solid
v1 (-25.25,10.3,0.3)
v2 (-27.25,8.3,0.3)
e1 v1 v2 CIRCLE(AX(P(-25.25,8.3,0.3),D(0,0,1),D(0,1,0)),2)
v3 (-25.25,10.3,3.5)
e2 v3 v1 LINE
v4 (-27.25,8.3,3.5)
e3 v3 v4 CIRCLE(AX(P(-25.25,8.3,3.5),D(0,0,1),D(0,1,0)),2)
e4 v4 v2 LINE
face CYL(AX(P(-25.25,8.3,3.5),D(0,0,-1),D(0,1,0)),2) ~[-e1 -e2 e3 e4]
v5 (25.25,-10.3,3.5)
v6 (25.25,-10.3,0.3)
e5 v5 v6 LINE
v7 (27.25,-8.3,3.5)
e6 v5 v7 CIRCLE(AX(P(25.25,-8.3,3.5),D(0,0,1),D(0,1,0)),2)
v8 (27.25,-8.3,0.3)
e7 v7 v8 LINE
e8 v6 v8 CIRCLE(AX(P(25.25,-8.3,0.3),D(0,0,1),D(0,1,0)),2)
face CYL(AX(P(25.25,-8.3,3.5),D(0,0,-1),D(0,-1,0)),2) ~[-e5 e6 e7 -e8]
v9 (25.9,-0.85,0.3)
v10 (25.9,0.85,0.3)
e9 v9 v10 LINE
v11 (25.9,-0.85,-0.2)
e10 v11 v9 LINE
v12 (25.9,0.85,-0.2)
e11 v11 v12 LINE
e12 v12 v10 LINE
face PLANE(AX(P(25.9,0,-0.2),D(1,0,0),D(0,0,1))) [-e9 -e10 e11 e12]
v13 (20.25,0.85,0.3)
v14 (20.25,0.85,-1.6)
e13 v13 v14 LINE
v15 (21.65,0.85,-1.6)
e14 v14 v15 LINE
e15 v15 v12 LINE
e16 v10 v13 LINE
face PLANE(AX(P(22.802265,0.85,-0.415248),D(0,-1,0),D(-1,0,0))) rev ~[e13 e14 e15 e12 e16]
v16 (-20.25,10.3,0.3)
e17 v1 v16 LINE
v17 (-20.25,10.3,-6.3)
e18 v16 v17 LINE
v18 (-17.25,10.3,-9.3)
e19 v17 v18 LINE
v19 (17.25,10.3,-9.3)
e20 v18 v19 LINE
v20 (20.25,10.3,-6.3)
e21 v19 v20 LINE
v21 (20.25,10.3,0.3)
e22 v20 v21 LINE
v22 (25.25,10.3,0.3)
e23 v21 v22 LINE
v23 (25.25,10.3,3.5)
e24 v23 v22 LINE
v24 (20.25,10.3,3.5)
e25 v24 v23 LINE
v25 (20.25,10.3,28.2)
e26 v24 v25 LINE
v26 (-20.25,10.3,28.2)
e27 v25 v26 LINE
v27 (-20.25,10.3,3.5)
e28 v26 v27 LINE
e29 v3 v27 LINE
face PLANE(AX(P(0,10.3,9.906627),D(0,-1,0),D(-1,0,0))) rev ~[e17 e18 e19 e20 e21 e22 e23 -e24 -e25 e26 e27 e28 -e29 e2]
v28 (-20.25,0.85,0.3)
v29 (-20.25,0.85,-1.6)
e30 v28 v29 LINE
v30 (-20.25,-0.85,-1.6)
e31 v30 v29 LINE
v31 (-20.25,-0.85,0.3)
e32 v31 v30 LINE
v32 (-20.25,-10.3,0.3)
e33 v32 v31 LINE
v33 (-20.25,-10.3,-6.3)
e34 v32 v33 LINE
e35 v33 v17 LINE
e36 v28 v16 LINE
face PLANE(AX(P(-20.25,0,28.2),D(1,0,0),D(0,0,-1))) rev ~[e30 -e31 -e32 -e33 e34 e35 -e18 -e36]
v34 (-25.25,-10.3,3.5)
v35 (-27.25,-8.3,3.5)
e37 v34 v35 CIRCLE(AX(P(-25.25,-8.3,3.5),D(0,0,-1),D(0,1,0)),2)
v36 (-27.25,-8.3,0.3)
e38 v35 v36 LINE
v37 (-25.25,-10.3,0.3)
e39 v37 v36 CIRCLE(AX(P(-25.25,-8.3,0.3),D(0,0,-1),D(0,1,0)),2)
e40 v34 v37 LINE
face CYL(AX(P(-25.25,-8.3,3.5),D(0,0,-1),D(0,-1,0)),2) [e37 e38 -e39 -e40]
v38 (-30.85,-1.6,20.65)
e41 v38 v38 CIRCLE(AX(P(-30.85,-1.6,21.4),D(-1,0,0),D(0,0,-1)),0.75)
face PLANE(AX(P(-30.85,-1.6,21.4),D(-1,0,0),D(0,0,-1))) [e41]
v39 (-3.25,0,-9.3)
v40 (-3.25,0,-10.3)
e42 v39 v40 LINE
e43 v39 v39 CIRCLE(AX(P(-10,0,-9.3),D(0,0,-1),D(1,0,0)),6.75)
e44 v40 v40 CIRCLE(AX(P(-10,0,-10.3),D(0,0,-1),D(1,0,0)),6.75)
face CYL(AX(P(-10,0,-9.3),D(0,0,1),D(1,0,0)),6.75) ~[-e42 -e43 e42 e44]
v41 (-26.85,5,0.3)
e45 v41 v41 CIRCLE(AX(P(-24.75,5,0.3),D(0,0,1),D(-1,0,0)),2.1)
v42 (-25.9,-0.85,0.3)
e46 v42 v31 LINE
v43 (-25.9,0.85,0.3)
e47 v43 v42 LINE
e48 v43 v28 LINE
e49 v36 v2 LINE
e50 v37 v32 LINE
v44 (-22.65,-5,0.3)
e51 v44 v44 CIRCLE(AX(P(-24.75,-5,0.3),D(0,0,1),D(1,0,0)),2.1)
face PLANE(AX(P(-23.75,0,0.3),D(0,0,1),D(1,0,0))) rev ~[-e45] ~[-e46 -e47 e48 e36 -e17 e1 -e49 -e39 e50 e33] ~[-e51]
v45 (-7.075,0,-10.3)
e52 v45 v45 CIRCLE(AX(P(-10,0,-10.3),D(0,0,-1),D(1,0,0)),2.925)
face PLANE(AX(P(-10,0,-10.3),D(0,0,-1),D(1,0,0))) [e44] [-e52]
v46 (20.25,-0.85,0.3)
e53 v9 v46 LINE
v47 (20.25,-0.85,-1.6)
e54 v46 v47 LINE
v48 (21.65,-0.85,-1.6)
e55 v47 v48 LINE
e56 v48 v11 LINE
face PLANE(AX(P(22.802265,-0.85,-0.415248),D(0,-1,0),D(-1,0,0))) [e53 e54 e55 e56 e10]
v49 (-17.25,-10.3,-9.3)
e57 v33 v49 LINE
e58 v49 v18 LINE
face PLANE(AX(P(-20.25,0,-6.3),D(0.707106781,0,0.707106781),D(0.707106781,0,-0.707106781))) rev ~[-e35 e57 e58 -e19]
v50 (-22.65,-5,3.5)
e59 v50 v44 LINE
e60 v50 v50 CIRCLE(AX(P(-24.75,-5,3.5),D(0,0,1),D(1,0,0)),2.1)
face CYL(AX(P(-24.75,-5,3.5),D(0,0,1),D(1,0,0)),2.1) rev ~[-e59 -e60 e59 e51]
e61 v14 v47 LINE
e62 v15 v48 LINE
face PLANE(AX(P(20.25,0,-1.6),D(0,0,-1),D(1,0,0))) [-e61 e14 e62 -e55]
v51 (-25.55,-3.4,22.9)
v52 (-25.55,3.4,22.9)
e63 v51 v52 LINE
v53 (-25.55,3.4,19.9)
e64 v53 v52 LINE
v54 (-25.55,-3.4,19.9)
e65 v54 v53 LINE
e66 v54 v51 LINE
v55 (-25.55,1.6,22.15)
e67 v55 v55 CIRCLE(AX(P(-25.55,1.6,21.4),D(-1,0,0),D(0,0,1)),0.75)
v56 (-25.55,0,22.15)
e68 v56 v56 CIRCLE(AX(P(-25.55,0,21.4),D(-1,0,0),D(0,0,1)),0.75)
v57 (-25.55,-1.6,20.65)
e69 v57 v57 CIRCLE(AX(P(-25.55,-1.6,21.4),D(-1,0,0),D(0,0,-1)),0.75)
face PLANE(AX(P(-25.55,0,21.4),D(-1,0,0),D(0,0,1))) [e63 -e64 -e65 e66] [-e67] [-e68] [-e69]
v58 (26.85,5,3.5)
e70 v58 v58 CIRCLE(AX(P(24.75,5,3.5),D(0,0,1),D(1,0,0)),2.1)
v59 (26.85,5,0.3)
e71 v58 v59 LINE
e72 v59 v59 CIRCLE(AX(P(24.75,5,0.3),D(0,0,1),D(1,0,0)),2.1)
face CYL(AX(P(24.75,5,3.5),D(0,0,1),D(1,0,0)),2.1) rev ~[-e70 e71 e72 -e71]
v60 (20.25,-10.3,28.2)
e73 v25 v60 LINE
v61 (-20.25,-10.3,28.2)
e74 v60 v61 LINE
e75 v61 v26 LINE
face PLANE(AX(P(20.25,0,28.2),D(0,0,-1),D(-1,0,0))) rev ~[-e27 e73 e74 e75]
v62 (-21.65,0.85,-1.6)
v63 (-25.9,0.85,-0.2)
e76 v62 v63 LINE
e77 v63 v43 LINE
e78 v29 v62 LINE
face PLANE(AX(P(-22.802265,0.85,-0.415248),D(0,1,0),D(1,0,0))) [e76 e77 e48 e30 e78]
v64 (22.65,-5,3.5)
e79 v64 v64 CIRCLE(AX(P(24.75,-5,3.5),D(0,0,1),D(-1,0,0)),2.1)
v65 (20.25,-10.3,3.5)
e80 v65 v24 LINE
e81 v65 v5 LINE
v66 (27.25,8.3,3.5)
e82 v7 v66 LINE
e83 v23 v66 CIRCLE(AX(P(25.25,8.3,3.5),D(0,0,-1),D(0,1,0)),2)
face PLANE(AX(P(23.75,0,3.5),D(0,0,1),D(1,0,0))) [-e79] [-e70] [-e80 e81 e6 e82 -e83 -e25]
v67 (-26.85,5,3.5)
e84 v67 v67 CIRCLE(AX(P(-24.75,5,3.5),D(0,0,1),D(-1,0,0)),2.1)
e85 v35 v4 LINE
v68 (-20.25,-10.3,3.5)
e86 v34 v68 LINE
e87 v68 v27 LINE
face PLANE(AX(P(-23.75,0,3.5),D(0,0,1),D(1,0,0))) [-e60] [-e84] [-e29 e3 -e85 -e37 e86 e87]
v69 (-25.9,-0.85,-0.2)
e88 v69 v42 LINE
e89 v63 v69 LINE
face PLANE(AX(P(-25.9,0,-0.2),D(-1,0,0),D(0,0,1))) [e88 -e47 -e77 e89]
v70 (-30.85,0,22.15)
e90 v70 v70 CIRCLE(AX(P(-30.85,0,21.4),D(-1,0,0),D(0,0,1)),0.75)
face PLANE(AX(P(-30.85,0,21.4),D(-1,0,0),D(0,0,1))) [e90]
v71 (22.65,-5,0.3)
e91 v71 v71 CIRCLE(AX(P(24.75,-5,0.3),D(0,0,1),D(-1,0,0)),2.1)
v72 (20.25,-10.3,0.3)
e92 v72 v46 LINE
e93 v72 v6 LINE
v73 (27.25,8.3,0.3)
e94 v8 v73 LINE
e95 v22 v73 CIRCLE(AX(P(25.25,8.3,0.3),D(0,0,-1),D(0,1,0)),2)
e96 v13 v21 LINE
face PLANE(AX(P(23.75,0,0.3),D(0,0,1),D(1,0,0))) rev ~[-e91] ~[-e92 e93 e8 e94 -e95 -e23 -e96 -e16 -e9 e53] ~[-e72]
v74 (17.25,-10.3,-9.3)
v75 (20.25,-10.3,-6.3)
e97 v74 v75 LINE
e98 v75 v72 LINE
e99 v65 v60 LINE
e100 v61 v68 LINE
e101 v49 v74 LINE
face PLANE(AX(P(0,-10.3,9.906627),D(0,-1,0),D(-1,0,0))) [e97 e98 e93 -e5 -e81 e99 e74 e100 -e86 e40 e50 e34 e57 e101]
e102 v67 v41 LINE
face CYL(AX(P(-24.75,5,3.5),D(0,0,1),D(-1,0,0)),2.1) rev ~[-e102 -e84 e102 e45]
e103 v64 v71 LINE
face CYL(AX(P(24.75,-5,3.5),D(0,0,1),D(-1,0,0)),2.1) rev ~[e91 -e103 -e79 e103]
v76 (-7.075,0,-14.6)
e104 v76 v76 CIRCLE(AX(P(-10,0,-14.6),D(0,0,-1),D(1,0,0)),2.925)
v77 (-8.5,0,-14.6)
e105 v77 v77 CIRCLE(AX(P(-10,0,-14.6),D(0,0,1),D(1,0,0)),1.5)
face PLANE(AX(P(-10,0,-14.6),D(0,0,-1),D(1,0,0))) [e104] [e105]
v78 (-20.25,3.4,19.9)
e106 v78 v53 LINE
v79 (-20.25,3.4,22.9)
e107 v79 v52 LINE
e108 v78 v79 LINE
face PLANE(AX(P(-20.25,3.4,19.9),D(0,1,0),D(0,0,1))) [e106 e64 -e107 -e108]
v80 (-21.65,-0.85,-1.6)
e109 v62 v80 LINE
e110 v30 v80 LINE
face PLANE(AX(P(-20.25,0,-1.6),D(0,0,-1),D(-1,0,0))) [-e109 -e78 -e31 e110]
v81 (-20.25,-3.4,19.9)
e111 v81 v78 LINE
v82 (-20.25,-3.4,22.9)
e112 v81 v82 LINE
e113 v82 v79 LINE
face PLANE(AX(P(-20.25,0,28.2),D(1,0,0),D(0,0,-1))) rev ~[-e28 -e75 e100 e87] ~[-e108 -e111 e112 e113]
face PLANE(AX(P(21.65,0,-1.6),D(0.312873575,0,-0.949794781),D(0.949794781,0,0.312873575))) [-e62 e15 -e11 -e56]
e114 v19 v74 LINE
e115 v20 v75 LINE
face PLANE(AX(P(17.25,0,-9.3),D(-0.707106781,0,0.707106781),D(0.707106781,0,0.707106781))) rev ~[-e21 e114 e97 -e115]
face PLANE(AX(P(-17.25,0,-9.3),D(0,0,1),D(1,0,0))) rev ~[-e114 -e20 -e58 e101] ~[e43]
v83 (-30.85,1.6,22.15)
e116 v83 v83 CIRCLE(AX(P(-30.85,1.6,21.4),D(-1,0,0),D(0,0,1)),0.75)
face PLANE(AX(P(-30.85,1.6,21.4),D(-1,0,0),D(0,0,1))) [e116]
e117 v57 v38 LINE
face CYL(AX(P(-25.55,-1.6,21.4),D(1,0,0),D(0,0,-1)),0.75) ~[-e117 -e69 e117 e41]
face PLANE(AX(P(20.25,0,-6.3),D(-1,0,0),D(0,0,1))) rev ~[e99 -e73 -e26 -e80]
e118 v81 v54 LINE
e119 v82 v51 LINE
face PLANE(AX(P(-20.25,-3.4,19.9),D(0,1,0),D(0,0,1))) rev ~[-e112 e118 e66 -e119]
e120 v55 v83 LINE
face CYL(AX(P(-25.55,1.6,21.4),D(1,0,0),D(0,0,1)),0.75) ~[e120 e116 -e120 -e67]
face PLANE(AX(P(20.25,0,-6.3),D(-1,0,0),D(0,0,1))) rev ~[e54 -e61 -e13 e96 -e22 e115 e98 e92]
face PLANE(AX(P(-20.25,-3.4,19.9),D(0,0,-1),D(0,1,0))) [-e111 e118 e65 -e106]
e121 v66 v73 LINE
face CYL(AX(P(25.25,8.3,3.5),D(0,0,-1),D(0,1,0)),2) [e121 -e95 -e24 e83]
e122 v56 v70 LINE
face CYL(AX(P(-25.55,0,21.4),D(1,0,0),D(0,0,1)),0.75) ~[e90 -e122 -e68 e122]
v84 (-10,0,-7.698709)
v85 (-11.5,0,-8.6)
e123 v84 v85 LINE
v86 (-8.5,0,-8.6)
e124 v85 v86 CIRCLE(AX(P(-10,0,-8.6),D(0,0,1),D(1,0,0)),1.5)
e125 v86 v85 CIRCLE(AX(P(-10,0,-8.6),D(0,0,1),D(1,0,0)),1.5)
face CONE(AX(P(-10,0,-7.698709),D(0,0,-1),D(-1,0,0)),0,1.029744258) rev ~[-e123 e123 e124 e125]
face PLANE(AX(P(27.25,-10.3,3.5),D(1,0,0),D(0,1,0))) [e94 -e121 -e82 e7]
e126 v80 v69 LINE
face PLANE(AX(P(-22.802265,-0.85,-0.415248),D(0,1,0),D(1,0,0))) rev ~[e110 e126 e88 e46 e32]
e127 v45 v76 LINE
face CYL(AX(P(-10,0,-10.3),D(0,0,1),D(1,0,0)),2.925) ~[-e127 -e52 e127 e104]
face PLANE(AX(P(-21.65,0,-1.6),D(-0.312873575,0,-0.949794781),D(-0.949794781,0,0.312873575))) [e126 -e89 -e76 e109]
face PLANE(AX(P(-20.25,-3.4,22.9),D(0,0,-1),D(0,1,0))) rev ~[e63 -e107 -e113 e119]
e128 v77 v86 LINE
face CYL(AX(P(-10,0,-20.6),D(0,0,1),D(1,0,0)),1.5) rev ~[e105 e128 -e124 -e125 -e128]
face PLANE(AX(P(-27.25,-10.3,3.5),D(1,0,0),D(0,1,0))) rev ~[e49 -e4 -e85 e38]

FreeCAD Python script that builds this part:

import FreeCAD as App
import Part
import Sketcher

V = App.Vector
Q = App.Units.Quantity


def edges_at(feature, points):
    """Names of the edges that pass closest to the given points."""
    edges = feature.Shape.Edges
    near = lambda p: min(range(len(edges)), key=lambda i: edges[i].distToShape(Part.Vertex(*p))[0])
    return sorted({f"Edge{near(p) + 1}" for p in points})

doc = App.newDocument("Part")
body = doc.addObject("PartDesign::Body", "Body")

# Sketch on XZ plane
sketch1 = body.newObject("Sketcher::SketchObject", "Sketch")
sketch1.AttachmentSupport = (doc.getObject("XZ_Plane"), [""])
sketch1.MapMode = "FlatFace"
sketch1.addGeometry([
    Part.LineSegment(V(17.2, -9.3, 0), V(-17.2, -9.3, 0)),  # 0
    Part.LineSegment(V(-17.2, -9.3, 0), V(-20.2, -6.3, 0)),  # 1
    Part.LineSegment(V(-20.2, -6.3, 0), V(-20.2, 28.2, 0)),  # 2
    Part.LineSegment(V(-20.2, 28.2, 0), V(20.2, 28.2, 0)),  # 3
    Part.LineSegment(V(20.2, 28.2, 0), V(20.2, -6.3, 0)),  # 4
    Part.LineSegment(V(20.2, -6.3, 0), V(17.2, -9.3, 0)),  # 5
], False)
sketch1.addConstraint([
    Sketcher.Constraint("Coincident", 0, 2, 1, 1),
    Sketcher.Constraint("Coincident", 1, 2, 2, 1),
    Sketcher.Constraint("Coincident", 2, 2, 3, 1),
    Sketcher.Constraint("Coincident", 3, 2, 4, 1),
    Sketcher.Constraint("Coincident", 4, 2, 5, 1),
    Sketcher.Constraint("Coincident", 5, 2, 0, 1),
    Sketcher.Constraint("Horizontal", 0),
    Sketcher.Constraint("Vertical", 2),
    Sketcher.Constraint("Horizontal", 3),
    Sketcher.Constraint("Vertical", 4),
    Sketcher.Constraint("Symmetric", 1, 2, 4, 2, -2),
    Sketcher.Constraint("Perpendicular", 1, 5),
    Sketcher.Constraint("Equal", 0, 2),
    Sketcher.Constraint("Equal", 1, 5),
    Sketcher.Constraint("DistanceX", 0, 2, 0, 1, Q("34.5 mm")),
    Sketcher.Constraint("DistanceX", 3, 1, 3, 2, Q("40.5 mm")),
    Sketcher.Constraint("DistanceY", 0, 2, -1, 1, Q("9.3 mm")),
])
pad1 = body.newObject("PartDesign::Pad", "Pad")
pad1.Profile = sketch1
pad1.Length = 20.6
pad1.Midplane = True

# Sketch on XY plane
sketch2 = body.newObject("Sketcher::SketchObject", "Sketch001")
sketch2.AttachmentSupport = (doc.getObject("XY_Plane"), [""])
sketch2.MapMode = "FlatFace"
sketch2.AttachmentOffset = App.Placement(V(0, 0, 3.5), App.Rotation())
sketch2.addGeometry([
    Part.LineSegment(V(20.2, 10.3, 0), V(20.2, -10.3, 0)),  # 0
    Part.LineSegment(V(20.2, -10.3, 0), V(27.2, -10.3, 0)),  # 1
    Part.LineSegment(V(27.2, -10.3, 0), V(27.2, 10.3, 0)),  # 2
    Part.LineSegment(V(27.2, 10.3, 0), V(20.2, 10.3, 0)),  # 3
    Part.Circle(V(24.8, -5, 0), V(0, 0, 1), 2.1),  # 4
    Part.Circle(V(24.8, 5, 0), V(0, 0, 1), 2.1),  # 5
    Part.LineSegment(V(-27.2, 10.3, 0), V(-27.2, -10.3, 0)),  # 6
    Part.LineSegment(V(-27.2, -10.3, 0), V(-20.2, -10.3, 0)),  # 7
    Part.LineSegment(V(-20.2, -10.3, 0), V(-20.2, 10.3, 0)),  # 8
    Part.LineSegment(V(-20.2, 10.3, 0), V(-27.2, 10.3, 0)),  # 9
    Part.Circle(V(-24.8, -5, 0), V(0, 0, 1), 2.1),  # 10
    Part.Circle(V(-24.8, 5, 0), V(0, 0, 1), 2.1),  # 11
], False)
sketch2.addConstraint([
    Sketcher.Constraint("Coincident", 0, 2, 1, 1),
    Sketcher.Constraint("Coincident", 1, 2, 2, 1),
    Sketcher.Constraint("Coincident", 2, 2, 3, 1),
    Sketcher.Constraint("Coincident", 3, 2, 0, 1),
    Sketcher.Constraint("Coincident", 6, 2, 7, 1),
    Sketcher.Constraint("Coincident", 7, 2, 8, 1),
    Sketcher.Constraint("Coincident", 8, 2, 9, 1),
    Sketcher.Constraint("Coincident", 9, 2, 6, 1),
    Sketcher.Constraint("Vertical", 0),
    Sketcher.Constraint("Horizontal", 1),
    Sketcher.Constraint("Vertical", 2),
    Sketcher.Constraint("Horizontal", 3),
    Sketcher.Constraint("Vertical", 6),
    Sketcher.Constraint("Horizontal", 7),
    Sketcher.Constraint("Vertical", 8),
    Sketcher.Constraint("Horizontal", 9),
    Sketcher.Constraint("Equal", 4, 5),
    Sketcher.Constraint("Equal", 5, 10),
    Sketcher.Constraint("Equal", 10, 11),
    Sketcher.Constraint("Symmetric", 5, 3, 10, 3, -1, 1),
    Sketcher.Constraint("Symmetric", 4, 3, 11, 3, -1, 1),
    Sketcher.Constraint("Symmetric", 2, 2, 6, 2, -1, 1),
    Sketcher.Constraint("Symmetric", 0, 2, 8, 2, -1, 1),
    Sketcher.Constraint("Symmetric", 4, 3, 10, 3, -2),
    Sketcher.Constraint("Horizontal", 1, 2, 6, 2),
    Sketcher.Constraint("Diameter", 4, Q("4.2 mm")),
    Sketcher.Constraint("DistanceX", 1, 1, 1, 2, Q("7 mm")),
    Sketcher.Constraint("DistanceY", 0, 2, 0, 1, Q("20.6 mm")),
    Sketcher.Constraint("DistanceY", 4, 3, -1, 1, Q("5 mm")),
    Sketcher.Constraint("DistanceX", 10, 3, 0, 2, Q("45 mm")),
    Sketcher.Constraint("DistanceX", 10, 3, 4, 3, Q("49.5 mm")),
])
pad2 = body.newObject("PartDesign::Pad", "Pad001")
pad2.Profile = sketch2
pad2.Length = 3.2
pad2.Reversed = True

# Sketch on XZ plane
sketch3 = body.newObject("Sketcher::SketchObject", "Sketch002")
sketch3.AttachmentSupport = (doc.getObject("XZ_Plane"), [""])
sketch3.MapMode = "FlatFace"
sketch3.addGeometry([
    Part.LineSegment(V(20.2, -1.6, 0), V(20.2, 0.3, 0)),  # 0
    Part.LineSegment(V(20.2, 0.3, 0), V(25.9, 0.3, 0)),  # 1
    Part.LineSegment(V(25.9, 0.3, 0), V(25.9, -0.2, 0)),  # 2
    Part.LineSegment(V(25.9, -0.2, 0), V(21.6, -1.6, 0)),  # 3
    Part.LineSegment(V(21.6, -1.6, 0), V(20.2, -1.6, 0)),  # 4
    Part.LineSegment(V(-25.9, 0.3, 0), V(-20.2, 0.3, 0)),  # 5
    Part.LineSegment(V(-20.2, 0.3, 0), V(-20.2, -1.6, 0)),  # 6
    Part.LineSegment(V(-20.2, -1.6, 0), V(-21.6, -1.6, 0)),  # 7
    Part.LineSegment(V(-21.6, -1.6, 0), V(-25.9, -0.2, 0)),  # 8
    Part.LineSegment(V(-25.9, -0.2, 0), V(-25.9, 0.3, 0)),  # 9
], False)
sketch3.addConstraint([
    Sketcher.Constraint("Coincident", 0, 2, 1, 1),
    Sketcher.Constraint("Coincident", 1, 2, 2, 1),
    Sketcher.Constraint("Coincident", 2, 2, 3, 1),
    Sketcher.Constraint("Coincident", 3, 2, 4, 1),
    Sketcher.Constraint("Coincident", 4, 2, 0, 1),
    Sketcher.Constraint("Coincident", 5, 2, 6, 1),
    Sketcher.Constraint("Coincident", 6, 2, 7, 1),
    Sketcher.Constraint("Coincident", 7, 2, 8, 1),
    Sketcher.Constraint("Coincident", 8, 2, 9, 1),
    Sketcher.Constraint("Coincident", 9, 2, 5, 1),
    Sketcher.Constraint("Vertical", 0),
    Sketcher.Constraint("Horizontal", 1),
    Sketcher.Constraint("Vertical", 2),
    Sketcher.Constraint("Horizontal", 4),
    Sketcher.Constraint("Horizontal", 5),
    Sketcher.Constraint("Vertical", 6),
    Sketcher.Constraint("Horizontal", 7),
    Sketcher.Constraint("Vertical", 9),
    Sketcher.Constraint("Symmetric", 0, 2, 5, 2, -2),
    Sketcher.Constraint("Symmetric", 3, 2, 7, 2, -2),
    Sketcher.Constraint("Symmetric", 2, 2, 8, 2, -2),
    Sketcher.Constraint("DistanceX", 4, 2, 4, 1, Q("1.4 mm")),
    Sketcher.Constraint("DistanceY", 0, 1, 0, 2, Q("1.9 mm")),
    Sketcher.Constraint("DistanceY", 2, 2, 2, 1, Q("0.5 mm")),
    Sketcher.Constraint("DistanceX", 1, 1, 1, 2, Q("5.65 mm")),
    Sketcher.Constraint("DistanceY", -1, 1, 0, 2, Q("0.3 mm")),
    Sketcher.Constraint("DistanceX", -1, 1, 1, 2, Q("25.9 mm")),
])
pad3 = body.newObject("PartDesign::Pad", "Pad002")
pad3.Profile = sketch3
pad3.Length = 1.7
pad3.Midplane = True

# Sketch on XY plane
sketch4 = body.newObject("Sketcher::SketchObject", "Sketch003")
sketch4.AttachmentSupport = (doc.getObject("XY_Plane"), [""])
sketch4.MapMode = "FlatFace"
sketch4.AttachmentOffset = App.Placement(V(0, 0, -9.3), App.Rotation())
sketch4.addGeometry(Part.Circle(V(-10, 0, 0), V(0, 0, 1), 7), False)
sketch4.addConstraint([
    Sketcher.Constraint("PointOnObject", 0, 3, -1),
    Sketcher.Constraint("Diameter", 0, Q("13.5 mm")),
    Sketcher.Constraint("DistanceX", 0, 3, -1, 1, Q("10 mm")),
])
pad4 = body.newObject("PartDesign::Pad", "Pad003")
pad4.Profile = sketch4
pad4.Length = 1
pad4.Reversed = True

# Sketch on XY plane
sketch5 = body.newObject("Sketcher::SketchObject", "Sketch004")
sketch5.AttachmentSupport = (doc.getObject("XY_Plane"), [""])
sketch5.MapMode = "FlatFace"
sketch5.AttachmentOffset = App.Placement(V(0, 0, -10.3), App.Rotation())
sketch5.addGeometry(Part.Circle(V(-10, 0, 0), V(0, 0, 1), 2.9), False)
sketch5.addConstraint([
    Sketcher.Constraint("PointOnObject", 0, 3, -1),
    Sketcher.Constraint("Diameter", 0, Q("5.85 mm")),
    Sketcher.Constraint("DistanceX", 0, 3, -1, 1, Q("10 mm")),
])
pad5 = body.newObject("PartDesign::Pad", "Pad004")
pad5.Profile = sketch5
pad5.Length = 4.3
pad5.Reversed = True
doc.recompute()

fillet = body.newObject("PartDesign::Fillet", "Fillet")
fillet.Base = (pad5, edges_at(pad5, [
    (27.25, 10.3, 1.9),
    (27.25, -10.3, 1.9),
    (-27.25, -10.3, 1.9),
    (-27.25, 10.3, 1.9),
]))
fillet.Radius = 2

# Sketch on YZ plane
sketch6 = body.newObject("Sketcher::SketchObject", "Sketch005")
sketch6.AttachmentSupport = (doc.getObject("YZ_Plane"), [""])
sketch6.MapMode = "FlatFace"
sketch6.AttachmentOffset = App.Placement(V(0, 0, -20.25), App.Rotation())
sketch6.addGeometry([
    Part.LineSegment(V(3.4, 19.9, 0), V(-3.4, 19.9, 0)),
    Part.LineSegment(V(-3.4, 19.9, 0), V(-3.4, 22.9, 0)),
    Part.LineSegment(V(-3.4, 22.9, 0), V(3.4, 22.9, 0)),
    Part.LineSegment(V(3.4, 22.9, 0), V(3.4, 19.9, 0)),
], False)
sketch6.addConstraint([
    Sketcher.Constraint("Coincident", 0, 2, 1, 1),
    Sketcher.Constraint("Coincident", 1, 2, 2, 1),
    Sketcher.Constraint("Coincident", 2, 2, 3, 1),
    Sketcher.Constraint("Coincident", 3, 2, 0, 1),
    Sketcher.Constraint("Horizontal", 0),
    Sketcher.Constraint("Vertical", 1),
    Sketcher.Constraint("Horizontal", 2),
    Sketcher.Constraint("Vertical", 3),
    Sketcher.Constraint("DistanceY", 1, 1, 1, 2, Q("3 mm")),
    Sketcher.Constraint("DistanceX", 0, 2, 0, 1, Q("6.8 mm")),
    Sketcher.Constraint("DistanceX", 0, 2, -1, 1, Q("3.4 mm")),
    Sketcher.Constraint("DistanceY", -1, 1, 0, 2, Q("19.9 mm")),
])
pad6 = body.newObject("PartDesign::Pad", "Pad005")
pad6.Profile = sketch6
pad6.Length = 5.3
pad6.Reversed = True

# Sketch on YZ plane
sketch7 = body.newObject("Sketcher::SketchObject", "Sketch006")
sketch7.AttachmentSupport = (doc.getObject("YZ_Plane"), [""])
sketch7.MapMode = "FlatFace"
sketch7.AttachmentOffset = App.Placement(V(0, 0, -25.55), App.Rotation())
sketch7.addGeometry([
    Part.Circle(V(0, 21.4, 0), V(0, 0, 1), 0.8),
    Part.Circle(V(1.6, 21.4, 0), V(0, 0, 1), 0.8),
    Part.Circle(V(-1.6, 21.4, 0), V(0, 0, 1), 0.8),
], False)
sketch7.addConstraint([
    Sketcher.Constraint("Equal", 0, 1),
    Sketcher.Constraint("Equal", 1, 2),
    Sketcher.Constraint("Symmetric", 1, 3, 2, 3, -2),
    Sketcher.Constraint("PointOnObject", 0, 3, -2),
    Sketcher.Constraint("Horizontal", 0, 3, 1, 3),
    Sketcher.Constraint("Diameter", 0, Q("1.5 mm")),
    Sketcher.Constraint("DistanceY", -1, 1, 0, 3, Q("21.4 mm")),
    Sketcher.Constraint("DistanceX", -1, 1, 1, 3, Q("1.6 mm")),
])
pad7 = body.newObject("PartDesign::Pad", "Pad006")
pad7.Profile = sketch7
pad7.Length = 5.3
pad7.Reversed = True

# Sketch on XY plane
sketch8 = body.newObject("Sketcher::SketchObject", "Sketch007")
sketch8.AttachmentSupport = (doc.getObject("XY_Plane"), [""])
sketch8.MapMode = "FlatFace"
sketch8.AttachmentOffset = App.Placement(V(0, 0, -14.6), App.Rotation())
sketch8.addGeometry(Part.Circle(V(-10, 0, 0), V(0, 0, 1), 1.5), False)
sketch8.addConstraint([
    Sketcher.Constraint("PointOnObject", 0, 3, -1),
    Sketcher.Constraint("Diameter", 0, Q("3 mm")),
    Sketcher.Constraint("DistanceX", 0, 3, -1, 1, Q("10 mm")),
])
doc.recompute()
hole = body.newObject("PartDesign::Hole", "Hole")
hole.Profile = sketch8
hole.ThreadType = "None"
hole.Diameter = 3
hole.DepthType = "Dimension"
hole.Depth = 6
hole.DrillPoint = "Angled"
hole.DrillPointAngle = 118
hole.Reversed = True

doc.recompute()
